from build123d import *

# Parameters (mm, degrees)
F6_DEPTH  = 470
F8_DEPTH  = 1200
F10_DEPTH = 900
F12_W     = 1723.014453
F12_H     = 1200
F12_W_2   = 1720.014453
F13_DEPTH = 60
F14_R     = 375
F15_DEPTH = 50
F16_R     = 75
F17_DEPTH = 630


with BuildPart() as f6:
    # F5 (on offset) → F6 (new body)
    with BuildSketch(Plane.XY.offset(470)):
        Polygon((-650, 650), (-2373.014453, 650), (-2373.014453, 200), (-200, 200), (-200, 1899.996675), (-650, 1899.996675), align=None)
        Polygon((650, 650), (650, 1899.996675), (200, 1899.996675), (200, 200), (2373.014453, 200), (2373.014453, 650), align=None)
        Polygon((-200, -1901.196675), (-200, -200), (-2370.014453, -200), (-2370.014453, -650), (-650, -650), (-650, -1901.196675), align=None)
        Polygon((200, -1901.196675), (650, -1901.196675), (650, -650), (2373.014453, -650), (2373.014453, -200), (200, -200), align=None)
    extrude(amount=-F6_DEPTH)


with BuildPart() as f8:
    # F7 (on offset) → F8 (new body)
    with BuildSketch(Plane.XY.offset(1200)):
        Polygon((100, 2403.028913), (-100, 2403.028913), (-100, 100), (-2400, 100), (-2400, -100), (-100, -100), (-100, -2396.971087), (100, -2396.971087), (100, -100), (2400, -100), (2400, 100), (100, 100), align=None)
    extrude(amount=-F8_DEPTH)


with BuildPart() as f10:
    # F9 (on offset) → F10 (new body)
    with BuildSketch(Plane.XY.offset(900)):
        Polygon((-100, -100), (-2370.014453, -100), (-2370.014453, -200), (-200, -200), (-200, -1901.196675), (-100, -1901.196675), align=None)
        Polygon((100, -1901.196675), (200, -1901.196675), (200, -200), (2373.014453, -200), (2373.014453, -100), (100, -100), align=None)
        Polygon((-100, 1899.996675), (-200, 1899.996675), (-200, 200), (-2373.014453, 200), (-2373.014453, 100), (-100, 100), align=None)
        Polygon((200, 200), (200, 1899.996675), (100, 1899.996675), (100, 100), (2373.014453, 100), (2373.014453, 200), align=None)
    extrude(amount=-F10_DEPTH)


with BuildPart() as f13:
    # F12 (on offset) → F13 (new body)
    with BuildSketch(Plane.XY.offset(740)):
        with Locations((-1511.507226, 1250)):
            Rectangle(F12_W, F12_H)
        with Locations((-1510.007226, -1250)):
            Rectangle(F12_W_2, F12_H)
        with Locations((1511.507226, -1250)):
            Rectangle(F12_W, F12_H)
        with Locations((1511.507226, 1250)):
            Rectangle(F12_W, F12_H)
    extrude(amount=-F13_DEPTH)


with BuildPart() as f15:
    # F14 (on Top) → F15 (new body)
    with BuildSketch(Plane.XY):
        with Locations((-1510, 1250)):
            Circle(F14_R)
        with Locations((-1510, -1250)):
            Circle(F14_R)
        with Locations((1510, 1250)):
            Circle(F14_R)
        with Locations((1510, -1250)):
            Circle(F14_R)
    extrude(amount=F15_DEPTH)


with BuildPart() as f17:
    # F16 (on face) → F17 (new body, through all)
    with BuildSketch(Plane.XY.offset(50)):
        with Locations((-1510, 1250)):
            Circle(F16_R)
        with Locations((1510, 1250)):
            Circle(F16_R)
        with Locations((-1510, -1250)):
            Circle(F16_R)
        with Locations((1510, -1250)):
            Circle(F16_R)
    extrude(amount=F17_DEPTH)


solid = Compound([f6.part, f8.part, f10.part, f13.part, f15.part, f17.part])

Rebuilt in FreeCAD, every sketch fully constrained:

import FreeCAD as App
import Part
import Sketcher
from FreeCAD import Vector

doc = App.newDocument("Part")
params = doc.addObject("Spreadsheet::Sheet", "Params")
for row, (alias, value) in enumerate([
    ("sketch1_width", "450 mm"),
    ("pad1_length", "470 mm"),
    ("sketch2_width", "200 mm"),
    ("sketch2_width2", "2300 mm"),
    ("pad2_length", "1200 mm"),
    ("sketch3_width", "100 mm"),
    ("pad3_length", "900 mm"),
    ("sketch4_height", "1200 mm"),
    ("pad4_length", "60 mm"),
    ("sketch5_diameter", "750 mm"),
    ("pad5_length", "50 mm"),
    ("sketch6_diameter", "150 mm"),
    ("pad6_length", "630 mm"),
], start=1):
    params.set(f"A{row}", alias)
    params.set(f"B{row}", "=" + value)
    params.setAlias(f"B{row}", alias)

body = doc.addObject("PartDesign::Body", "Body")
body.AllowCompound = True

sketch1 = body.newObject("Sketcher::SketchObject", "Sketch")
sketch1.AttachmentSupport = (doc.getObject("XY_Plane"), [""])
sketch1.MapMode = "FlatFace"
sketch1.AttachmentOffset = App.Placement(Vector(0, 0, 470), App.Rotation())
sketch1.addGeometry(Part.LineSegment(Vector(-650, 650, 0), Vector(-2373, 650, 0)), False)
sketch1.addGeometry(Part.LineSegment(Vector(-2373, 650, 0), Vector(-2373, 200, 0)), False)
sketch1.addGeometry(Part.LineSegment(Vector(-2373, 200, 0), Vector(-200, 200, 0)), False)
sketch1.addGeometry(Part.LineSegment(Vector(-200, 200, 0), Vector(-200, 1900, 0)), False)
sketch1.addGeometry(Part.LineSegment(Vector(-200, 1900, 0), Vector(-650, 1900, 0)), False)
sketch1.addGeometry(Part.LineSegment(Vector(-650, 1900, 0), Vector(-650, 650, 0)), False)
sketch1.addGeometry(Part.LineSegment(Vector(650, 650, 0), Vector(650, 1900, 0)), False)
sketch1.addGeometry(Part.LineSegment(Vector(650, 1900, 0), Vector(200, 1900, 0)), False)
sketch1.addGeometry(Part.LineSegment(Vector(200, 1900, 0), Vector(200, 200, 0)), False)
sketch1.addGeometry(Part.LineSegment(Vector(200, 200, 0), Vector(2373, 200, 0)), False)
sketch1.addGeometry(Part.LineSegment(Vector(2373, 200, 0), Vector(2373, 650, 0)), False)
sketch1.addGeometry(Part.LineSegment(Vector(2373, 650, 0), Vector(650, 650, 0)), False)
sketch1.addGeometry(Part.LineSegment(Vector(-200, -1901, 0), Vector(-200, -200, 0)), False)
sketch1.addGeometry(Part.LineSegment(Vector(-200, -200, 0), Vector(-2370, -200, 0)), False)
sketch1.addGeometry(Part.LineSegment(Vector(-2370, -200, 0), Vector(-2370, -650, 0)), False)
sketch1.addGeometry(Part.LineSegment(Vector(-2370, -650, 0), Vector(-650, -650, 0)), False)
sketch1.addGeometry(Part.LineSegment(Vector(-650, -650, 0), Vector(-650, -1901, 0)), False)
sketch1.addGeometry(Part.LineSegment(Vector(-650, -1901, 0), Vector(-200, -1901, 0)), False)
sketch1.addGeometry(Part.LineSegment(Vector(200, -1901, 0), Vector(650, -1901, 0)), False)
sketch1.addGeometry(Part.LineSegment(Vector(650, -1901, 0), Vector(650, -650, 0)), False)
sketch1.addGeometry(Part.LineSegment(Vector(650, -650, 0), Vector(2373, -650, 0)), False)
sketch1.addGeometry(Part.LineSegment(Vector(2373, -650, 0), Vector(2373, -200, 0)), False)
sketch1.addGeometry(Part.LineSegment(Vector(2373, -200, 0), Vector(200, -200, 0)), False)
sketch1.addGeometry(Part.LineSegment(Vector(200, -200, 0), Vector(200, -1901, 0)), False)
sketch1.addConstraint(Sketcher.Constraint("Coincident", 0, 2, 1, 1))
sketch1.addConstraint(Sketcher.Constraint("Coincident", 1, 2, 2, 1))
sketch1.addConstraint(Sketcher.Constraint("Coincident", 2, 2, 3, 1))
sketch1.addConstraint(Sketcher.Constraint("Coincident", 3, 2, 4, 1))
sketch1.addConstraint(Sketcher.Constraint("Coincident", 4, 2, 5, 1))
sketch1.addConstraint(Sketcher.Constraint("Coincident", 5, 2, 0, 1))
sketch1.addConstraint(Sketcher.Constraint("Coincident", 6, 2, 7, 1))
sketch1.addConstraint(Sketcher.Constraint("Coincident", 7, 2, 8, 1))
sketch1.addConstraint(Sketcher.Constraint("Coincident", 8, 2, 9, 1))
sketch1.addConstraint(Sketcher.Constraint("Coincident", 9, 2, 10, 1))
sketch1.addConstraint(Sketcher.Constraint("Coincident", 10, 2, 11, 1))
sketch1.addConstraint(Sketcher.Constraint("Coincident", 11, 2, 6, 1))
sketch1.addConstraint(Sketcher.Constraint("Coincident", 12, 2, 13, 1))
sketch1.addConstraint(Sketcher.Constraint("Coincident", 13, 2, 14, 1))
sketch1.addConstraint(Sketcher.Constraint("Coincident", 14, 2, 15, 1))
sketch1.addConstraint(Sketcher.Constraint("Coincident", 15, 2, 16, 1))
sketch1.addConstraint(Sketcher.Constraint("Coincident", 16, 2, 17, 1))
sketch1.addConstraint(Sketcher.Constraint("Coincident", 17, 2, 12, 1))
sketch1.addConstraint(Sketcher.Constraint("Coincident", 18, 2, 19, 1))
sketch1.addConstraint(Sketcher.Constraint("Coincident", 19, 2, 20, 1))
sketch1.addConstraint(Sketcher.Constraint("Coincident", 20, 2, 21, 1))
sketch1.addConstraint(Sketcher.Constraint("Coincident", 21, 2, 22, 1))
sketch1.addConstraint(Sketcher.Constraint("Coincident", 22, 2, 23, 1))
sketch1.addConstraint(Sketcher.Constraint("Coincident", 23, 2, 18, 1))
sketch1.addConstraint(Sketcher.Constraint("Horizontal", 0))
sketch1.addConstraint(Sketcher.Constraint("Vertical", 1))
sketch1.addConstraint(Sketcher.Constraint("Horizontal", 2))
sketch1.addConstraint(Sketcher.Constraint("Vertical", 3))
sketch1.addConstraint(Sketcher.Constraint("Horizontal", 4))
sketch1.addConstraint(Sketcher.Constraint("Vertical", 5))
sketch1.addConstraint(Sketcher.Constraint("Vertical", 6))
sketch1.addConstraint(Sketcher.Constraint("Horizontal", 7))
sketch1.addConstraint(Sketcher.Constraint("Vertical", 8))
sketch1.addConstraint(Sketcher.Constraint("Horizontal", 9))
sketch1.addConstraint(Sketcher.Constraint("Vertical", 10))
sketch1.addConstraint(Sketcher.Constraint("Horizontal", 11))
sketch1.addConstraint(Sketcher.Constraint("Vertical", 12))
sketch1.addConstraint(Sketcher.Constraint("Horizontal", 13))
sketch1.addConstraint(Sketcher.Constraint("Vertical", 14))
sketch1.addConstraint(Sketcher.Constraint("Horizontal", 15))
sketch1.addConstraint(Sketcher.Constraint("Vertical", 16))
sketch1.addConstraint(Sketcher.Constraint("Horizontal", 17))
sketch1.addConstraint(Sketcher.Constraint("Horizontal", 18))
sketch1.addConstraint(Sketcher.Constraint("Vertical", 19))
sketch1.addConstraint(Sketcher.Constraint("Horizontal", 20))
sketch1.addConstraint(Sketcher.Constraint("Vertical", 21))
sketch1.addConstraint(Sketcher.Constraint("Horizontal", 22))
sketch1.addConstraint(Sketcher.Constraint("Vertical", 23))
sketch1.addConstraint(Sketcher.Constraint("Symmetric", 8, 2, 12, 2, -1, 1))
sketch1.addConstraint(Sketcher.Constraint("Symmetric", 11, 2, 15, 2, -1, 1))
sketch1.addConstraint(Sketcher.Constraint("Symmetric", 5, 2, 19, 2, -1, 1))
sketch1.addConstraint(Sketcher.Constraint("Symmetric", 1, 2, 21, 2, -1, 1))
sketch1.addConstraint(Sketcher.Constraint("Symmetric", 4, 2, 6, 2, -2))
sketch1.addConstraint(Sketcher.Constraint("Symmetric", 2, 2, 8, 2, -2))
sketch1.addConstraint(Sketcher.Constraint("Symmetric", 0, 2, 10, 2, -2))
sketch1.addConstraint(Sketcher.Constraint("Symmetric", 17, 2, 23, 2, -2))
sketch1.addConstraint(Sketcher.Constraint("Equal", 18, 1))
sketch1.addConstraint(Sketcher.Constraint("DistanceX", 4, 2, 4, 1, 450.0))
sketch1.addConstraint(Sketcher.Constraint("DistanceY", -1, 1, 0, 2, 650.0))
sketch1.addConstraint(Sketcher.Constraint("DistanceX", 2, 2, -1, 1, 200.0))
sketch1.addConstraint(Sketcher.Constraint("DistanceX", 1, 2, 13, 2, 3.0))
sketch1.addConstraint(Sketcher.Constraint("DistanceX", 0, 2, 0, 1, 1723.014453))
sketch1.addConstraint(Sketcher.Constraint("DistanceY", 3, 1, 3, 2, 1699.996675))
sketch1.addConstraint(Sketcher.Constraint("DistanceY", 12, 1, 12, 2, 1701.196675))
sketch1.setExpression("Constraints[57]", "Params.sketch1_width")
pad1 = body.newObject("PartDesign::Pad", "Pad")
pad1.Profile = sketch1
pad1.setExpression("Length", "Params.pad1_length")
pad1.Reversed = True
body2 = doc.addObject("PartDesign::Body", "Body001")

sketch2 = body2.newObject("Sketcher::SketchObject", "Sketch001")
sketch2.AttachmentSupport = (doc.getObject("XY_Plane001"), [""])
sketch2.MapMode = "FlatFace"
sketch2.AttachmentOffset = App.Placement(Vector(0, 0, 1200), App.Rotation())
sketch2.addGeometry(Part.LineSegment(Vector(100, 2403, 0), Vector(-100, 2403, 0)), False)
sketch2.addGeometry(Part.LineSegment(Vector(-100, 2403, 0), Vector(-100, 100, 0)), False)
sketch2.addGeometry(Part.LineSegment(Vector(-100, 100, 0), Vector(-2400, 100, 0)), False)
sketch2.addGeometry(Part.LineSegment(Vector(-2400, 100, 0), Vector(-2400, -100, 0)), False)
sketch2.addGeometry(Part.LineSegment(Vector(-2400, -100, 0), Vector(-100, -100, 0)), False)
sketch2.addGeometry(Part.LineSegment(Vector(-100, -100, 0), Vector(-100, -2397, 0)), False)
sketch2.addGeometry(Part.LineSegment(Vector(-100, -2397, 0), Vector(100, -2397, 0)), False)
sketch2.addGeometry(Part.LineSegment(Vector(100, -2397, 0), Vector(100, -100, 0)), False)
sketch2.addGeometry(Part.LineSegment(Vector(100, -100, 0), Vector(2400, -100, 0)), False)
sketch2.addGeometry(Part.LineSegment(Vector(2400, -100, 0), Vector(2400, 100, 0)), False)
sketch2.addGeometry(Part.LineSegment(Vector(2400, 100, 0), Vector(100, 100, 0)), False)
sketch2.addGeometry(Part.LineSegment(Vector(100, 100, 0), Vector(100, 2403, 0)), False)
sketch2.addConstraint(Sketcher.Constraint("Coincident", 0, 2, 1, 1))
sketch2.addConstraint(Sketcher.Constraint("Coincident", 1, 2, 2, 1))
sketch2.addConstraint(Sketcher.Constraint("Coincident", 2, 2, 3, 1))
sketch2.addConstraint(Sketcher.Constraint("Coincident", 3, 2, 4, 1))
sketch2.addConstraint(Sketcher.Constraint("Coincident", 4, 2, 5, 1))
sketch2.addConstraint(Sketcher.Constraint("Coincident", 5, 2, 6, 1))
sketch2.addConstraint(Sketcher.Constraint("Coincident", 6, 2, 7, 1))
sketch2.addConstraint(Sketcher.Constraint("Coincident", 7, 2, 8, 1))
sketch2.addConstraint(Sketcher.Constraint("Coincident", 8, 2, 9, 1))
sketch2.addConstraint(Sketcher.Constraint("Coincident", 9, 2, 10, 1))
sketch2.addConstraint(Sketcher.Constraint("Coincident", 10, 2, 11, 1))
sketch2.addConstraint(Sketcher.Constraint("Coincident", 11, 2, 0, 1))
sketch2.addConstraint(Sketcher.Constraint("Horizontal", 0))
sketch2.addConstraint(Sketcher.Constraint("Vertical", 1))
sketch2.addConstraint(Sketcher.Constraint("Horizontal", 2))
sketch2.addConstraint(Sketcher.Constraint("Vertical", 3))
sketch2.addConstraint(Sketcher.Constraint("Horizontal", 4))
sketch2.addConstraint(Sketcher.Constraint("Vertical", 5))
sketch2.addConstraint(Sketcher.Constraint("Horizontal", 6))
sketch2.addConstraint(Sketcher.Constraint("Vertical", 7))
sketch2.addConstraint(Sketcher.Constraint("Horizontal", 8))
sketch2.addConstraint(Sketcher.Constraint("Vertical", 9))
sketch2.addConstraint(Sketcher.Constraint("Horizontal", 10))
sketch2.addConstraint(Sketcher.Constraint("Vertical", 11))
sketch2.addConstraint(Sketcher.Constraint("Symmetric", 1, 2, 7, 2, -1, 1))
sketch2.addConstraint(Sketcher.Constraint("Symmetric", 3, 2, 9, 2, -1, 1))
sketch2.addConstraint(Sketcher.Constraint("Symmetric", 4, 2, 7, 2, -2))
sketch2.addConstraint(Sketcher.Constraint("Vertical", 7, 2, 10, 2))
sketch2.addConstraint(Sketcher.Constraint("Equal", 6, 3))
sketch2.addConstraint(Sketcher.Constraint("DistanceX", 0, 2, 0, 1, 200.0))
sketch2.addConstraint(Sketcher.Constraint("DistanceX", 2, 2, 2, 1, 2300.0))
sketch2.addConstraint(Sketcher.Constraint("DistanceY", 5, 2, 0, 2, 4800.0))
sketch2.addConstraint(Sketcher.Constraint("DistanceY", 1, 2, 1, 1, 2303.028913))
sketch2.setExpression("Constraints[29]", "Params.sketch2_width")
sketch2.setExpression("Constraints[30]", "Params.sketch2_width2")
pad2 = body2.newObject("PartDesign::Pad", "Pad001")
pad2.Profile = sketch2
pad2.setExpression("Length", "Params.pad2_length")
pad2.Reversed = True
body3 = doc.addObject("PartDesign::Body", "Body002")
body3.AllowCompound = True

sketch3 = body3.newObject("Sketcher::SketchObject", "Sketch002")
sketch3.AttachmentSupport = (doc.getObject("XY_Plane002"), [""])
sketch3.MapMode = "FlatFace"
sketch3.AttachmentOffset = App.Placement(Vector(0, 0, 900), App.Rotation())
sketch3.addGeometry(Part.LineSegment(Vector(-100, -100, 0), Vector(-2370.014453, -100, 0)), False)
sketch3.addGeometry(Part.LineSegment(Vector(-2370.014453, -100, 0), Vector(-2370.014453, -200, 0)), False)
sketch3.addGeometry(Part.LineSegment(Vector(-2370.014453, -200, 0), Vector(-200, -200, 0)), False)
sketch3.addGeometry(Part.LineSegment(Vector(-200, -200, 0), Vector(-200, -1901.196675, 0)), False)
sketch3.addGeometry(Part.LineSegment(Vector(-200, -1901.196675, 0), Vector(-100, -1901.196675, 0)), False)
sketch3.addGeometry(Part.LineSegment(Vector(-100, -1901.196675, 0), Vector(-100, -100, 0)), False)
sketch3.addGeometry(Part.LineSegment(Vector(100, -1901.196675, 0), Vector(200, -1901.196675, 0)), False)
sketch3.addGeometry(Part.LineSegment(Vector(200, -1901.196675, 0), Vector(200, -200, 0)), False)
sketch3.addGeometry(Part.LineSegment(Vector(200, -200, 0), Vector(2373.014453, -200, 0)), False)
sketch3.addGeometry(Part.LineSegment(Vector(2373.014453, -200, 0), Vector(2373.014453, -100, 0)), False)
sketch3.addGeometry(Part.LineSegment(Vector(2373.014453, -100, 0), Vector(100, -100, 0)), False)
sketch3.addGeometry(Part.LineSegment(Vector(100, -100, 0), Vector(100, -1901.196675, 0)), False)
sketch3.addGeometry(Part.LineSegment(Vector(-100, 1899.996675, 0), Vector(-200, 1899.996675, 0)), False)
sketch3.addGeometry(Part.LineSegment(Vector(-200, 1899.996675, 0), Vector(-200, 200, 0)), False)
sketch3.addGeometry(Part.LineSegment(Vector(-200, 200, 0), Vector(-2373.014453, 200, 0)), False)
sketch3.addGeometry(Part.LineSegment(Vector(-2373.014453, 200, 0), Vector(-2373.014453, 100, 0)), False)
sketch3.addGeometry(Part.LineSegment(Vector(-2373.014453, 100, 0), Vector(-100, 100, 0)), False)
sketch3.addGeometry(Part.LineSegment(Vector(-100, 100, 0), Vector(-100, 1899.996675, 0)), False)
sketch3.addGeometry(Part.LineSegment(Vector(200, 200, 0), Vector(200, 1899.996675, 0)), False)
sketch3.addGeometry(Part.LineSegment(Vector(200, 1899.996675, 0), Vector(100, 1899.996675, 0)), False)
sketch3.addGeometry(Part.LineSegment(Vector(100, 1899.996675, 0), Vector(100, 100, 0)), False)
sketch3.addGeometry(Part.LineSegment(Vector(100, 100, 0), Vector(2373.014453, 100, 0)), False)
sketch3.addGeometry(Part.LineSegment(Vector(2373.014453, 100, 0), Vector(2373.014453, 200, 0)), False)
sketch3.addGeometry(Part.LineSegment(Vector(2373.014453, 200, 0), Vector(200, 200, 0)), False)
sketch3.addConstraint(Sketcher.Constraint("Coincident", 0, 2, 1, 1))
sketch3.addConstraint(Sketcher.Constraint("Coincident", 1, 2, 2, 1))
sketch3.addConstraint(Sketcher.Constraint("Coincident", 2, 2, 3, 1))
sketch3.addConstraint(Sketcher.Constraint("Coincident", 3, 2, 4, 1))
sketch3.addConstraint(Sketcher.Constraint("Coincident", 4, 2, 5, 1))
sketch3.addConstraint(Sketcher.Constraint("Coincident", 5, 2, 0, 1))
sketch3.addConstraint(Sketcher.Constraint("Coincident", 6, 2, 7, 1))
sketch3.addConstraint(Sketcher.Constraint("Coincident", 7, 2, 8, 1))
sketch3.addConstraint(Sketcher.Constraint("Coincident", 8, 2, 9, 1))
sketch3.addConstraint(Sketcher.Constraint("Coincident", 9, 2, 10, 1))
sketch3.addConstraint(Sketcher.Constraint("Coincident", 10, 2, 11, 1))
sketch3.addConstraint(Sketcher.Constraint("Coincident", 11, 2, 6, 1))
sketch3.addConstraint(Sketcher.Constraint("Coincident", 12, 2, 13, 1))
sketch3.addConstraint(Sketcher.Constraint("Coincident", 13, 2, 14, 1))
sketch3.addConstraint(Sketcher.Constraint("Coincident", 14, 2, 15, 1))
sketch3.addConstraint(Sketcher.Constraint("Coincident", 15, 2, 16, 1))
sketch3.addConstraint(Sketcher.Constraint("Coincident", 16, 2, 17, 1))
sketch3.addConstraint(Sketcher.Constraint("Coincident", 17, 2, 12, 1))
sketch3.addConstraint(Sketcher.Constraint("Coincident", 18, 2, 19, 1))
sketch3.addConstraint(Sketcher.Constraint("Coincident", 19, 2, 20, 1))
sketch3.addConstraint(Sketcher.Constraint("Coincident", 20, 2, 21, 1))
sketch3.addConstraint(Sketcher.Constraint("Coincident", 21, 2, 22, 1))
sketch3.addConstraint(Sketcher.Constraint("Coincident", 22, 2, 23, 1))
sketch3.addConstraint(Sketcher.Constraint("Coincident", 23, 2, 18, 1))
sketch3.addConstraint(Sketcher.Constraint("Horizontal", 0))
sketch3.addConstraint(Sketcher.Constraint("Vertical", 1))
sketch3.addConstraint(Sketcher.Constraint("Horizontal", 2))
sketch3.addConstraint(Sketcher.Constraint("Vertical", 3))
sketch3.addConstraint(Sketcher.Constraint("Horizontal", 4))
sketch3.addConstraint(Sketcher.Constraint("Vertical", 5))
sketch3.addConstraint(Sketcher.Constraint("Horizontal", 6))
sketch3.addConstraint(Sketcher.Constraint("Vertical", 7))
sketch3.addConstraint(Sketcher.Constraint("Horizontal", 8))
sketch3.addConstraint(Sketcher.Constraint("Vertical", 9))
sketch3.addConstraint(Sketcher.Constraint("Horizontal", 10))
sketch3.addConstraint(Sketcher.Constraint("Vertical", 11))
sketch3.addConstraint(Sketcher.Constraint("Horizontal", 12))
sketch3.addConstraint(Sketcher.Constraint("Vertical", 13))
sketch3.addConstraint(Sketcher.Constraint("Horizontal", 14))
sketch3.addConstraint(Sketcher.Constraint("Vertical", 15))
sketch3.addConstraint(Sketcher.Constraint("Horizontal", 16))
sketch3.addConstraint(Sketcher.Constraint("Vertical", 17))
sketch3.addConstraint(Sketcher.Constraint("Vertical", 18))
sketch3.addConstraint(Sketcher.Constraint("Horizontal", 19))
sketch3.addConstraint(Sketcher.Constraint("Vertical", 20))
sketch3.addConstraint(Sketcher.Constraint("Horizontal", 21))
sketch3.addConstraint(Sketcher.Constraint("Vertical", 22))
sketch3.addConstraint(Sketcher.Constraint("Horizontal", 23))
sketch3.addConstraint(Sketcher.Constraint("Symmetric", 7, 2, 13, 2, -1, 1))
sketch3.addConstraint(Sketcher.Constraint("Symmetric", 9, 2, 15, 2, -1, 1))
sketch3.addConstraint(Sketcher.Constraint("Symmetric", 5, 2, 20, 2, -1, 1))
sketch3.addConstraint(Sketcher.Constraint("Symmetric", 2, 2, 23, 2, -1, 1))
sketch3.addConstraint(Sketcher.Constraint("Symmetric", 3, 2, 6, 2, -2))
sketch3.addConstraint(Sketcher.Constraint("Symmetric", 5, 2, 10, 2, -2))
sketch3.addConstraint(Sketcher.Constraint("Symmetric", 17, 2, 19, 2, -2))
sketch3.addConstraint(Sketcher.Constraint("Symmetric", 14, 2, 22, 2, -2))
sketch3.addConstraint(Sketcher.Constraint("Equal", 19, 1))
sketch3.addConstraint(Sketcher.Constraint("DistanceX", 4, 1, 4, 2, 100.0))
sketch3.addConstraint(Sketcher.Constraint("DistanceY", 0, 2, -1, 1, 100.0))
sketch3.addConstraint(Sketcher.Constraint("DistanceX", 2, 2, -1, 1, 200.0))
sketch3.addConstraint(Sketcher.Constraint("DistanceX", 14, 2, 0, 2, 3.0))
sketch3.addConstraint(Sketcher.Constraint("DistanceX", 0, 2, 0, 1, 2270.014453))
sketch3.addConstraint(Sketcher.Constraint("DistanceY", 3, 2, 3, 1, 1701.196675))
sketch3.addConstraint(Sketcher.Constraint("DistanceY", 13, 2, 13, 1, 1699.996675))
sketch3.setExpression("Constraints[57]", "Params.sketch3_width")
pad3 = body3.newObject("PartDesign::Pad", "Pad002")
pad3.Profile = sketch3
pad3.setExpression("Length", "Params.pad3_length")
pad3.Reversed = True
body4 = doc.addObject("PartDesign::Body", "Body003")
body4.AllowCompound = True

sketch4 = body4.newObject("Sketcher::SketchObject", "Sketch003")
sketch4.AttachmentSupport = (doc.getObject("XY_Plane003"), [""])
sketch4.MapMode = "FlatFace"
sketch4.AttachmentOffset = App.Placement(Vector(0, 0, 740), App.Rotation())
sketch4.addGeometry(Part.LineSegment(Vector(-2373, 1850, 0), Vector(-2373, 650, 0)), False)
sketch4.addGeometry(Part.LineSegment(Vector(-2373, 650, 0), Vector(-650, 650, 0)), False)
sketch4.addGeometry(Part.LineSegment(Vector(-650, 650, 0), Vector(-650, 1850, 0)), False)
sketch4.addGeometry(Part.LineSegment(Vector(-650, 1850, 0), Vector(-2373, 1850, 0)), False)
sketch4.addGeometry(Part.LineSegment(Vector(-2370, -650, 0), Vector(-2370, -1850, 0)), False)
sketch4.addGeometry(Part.LineSegment(Vector(-2370, -1850, 0), Vector(-650, -1850, 0)), False)
sketch4.addGeometry(Part.LineSegment(Vector(-650, -1850, 0), Vector(-650, -650, 0)), False)
sketch4.addGeometry(Part.LineSegment(Vector(-650, -650, 0), Vector(-2370, -650, 0)), False)
sketch4.addGeometry(Part.LineSegment(Vector(650, -650, 0), Vector(650, -1850, 0)), False)
sketch4.addGeometry(Part.LineSegment(Vector(650, -1850, 0), Vector(2373, -1850, 0)), False)
sketch4.addGeometry(Part.LineSegment(Vector(2373, -1850, 0), Vector(2373, -650, 0)), False)
sketch4.addGeometry(Part.LineSegment(Vector(2373, -650, 0), Vector(650, -650, 0)), False)
sketch4.addGeometry(Part.LineSegment(Vector(650, 1850, 0), Vector(650, 650, 0)), False)
sketch4.addGeometry(Part.LineSegment(Vector(650, 650, 0), Vector(2373, 650, 0)), False)
sketch4.addGeometry(Part.LineSegment(Vector(2373, 650, 0), Vector(2373, 1850, 0)), False)
sketch4.addGeometry(Part.LineSegment(Vector(2373, 1850, 0), Vector(650, 1850, 0)), False)
sketch4.addConstraint(Sketcher.Constraint("Coincident", 0, 2, 1, 1))
sketch4.addConstraint(Sketcher.Constraint("Coincident", 1, 2, 2, 1))
sketch4.addConstraint(Sketcher.Constraint("Coincident", 2, 2, 3, 1))
sketch4.addConstraint(Sketcher.Constraint("Coincident", 3, 2, 0, 1))
sketch4.addConstraint(Sketcher.Constraint("Coincident", 4, 2, 5, 1))
sketch4.addConstraint(Sketcher.Constraint("Coincident", 5, 2, 6, 1))
sketch4.addConstraint(Sketcher.Constraint("Coincident", 6, 2, 7, 1))
sketch4.addConstraint(Sketcher.Constraint("Coincident", 7, 2, 4, 1))
sketch4.addConstraint(Sketcher.Constraint("Coincident", 8, 2, 9, 1))
sketch4.addConstraint(Sketcher.Constraint("Coincident", 9, 2, 10, 1))
sketch4.addConstraint(Sketcher.Constraint("Coincident", 10, 2, 11, 1))
sketch4.addConstraint(Sketcher.Constraint("Coincident", 11, 2, 8, 1))
sketch4.addConstraint(Sketcher.Constraint("Coincident", 12, 2, 13, 1))
sketch4.addConstraint(Sketcher.Constraint("Coincident", 13, 2, 14, 1))
sketch4.addConstraint(Sketcher.Constraint("Coincident", 14, 2, 15, 1))
sketch4.addConstraint(Sketcher.Constraint("Coincident", 15, 2, 12, 1))
sketch4.addConstraint(Sketcher.Constraint("Vertical", 0))
sketch4.addConstraint(Sketcher.Constraint("Horizontal", 1))
sketch4.addConstraint(Sketcher.Constraint("Vertical", 2))
sketch4.addConstraint(Sketcher.Constraint("Horizontal", 3))
sketch4.addConstraint(Sketcher.Constraint("Vertical", 4))
sketch4.addConstraint(Sketcher.Constraint("Horizontal", 5))
sketch4.addConstraint(Sketcher.Constraint("Vertical", 6))
sketch4.addConstraint(Sketcher.Constraint("Horizontal", 7))
sketch4.addConstraint(Sketcher.Constraint("Vertical", 8))
sketch4.addConstraint(Sketcher.Constraint("Horizontal", 9))
sketch4.addConstraint(Sketcher.Constraint("Vertical", 10))
sketch4.addConstraint(Sketcher.Constraint("Horizontal", 11))
sketch4.addConstraint(Sketcher.Constraint("Vertical", 12))
sketch4.addConstraint(Sketcher.Constraint("Horizontal", 13))
sketch4.addConstraint(Sketcher.Constraint("Vertical", 14))
sketch4.addConstraint(Sketcher.Constraint("Horizontal", 15))
sketch4.addConstraint(Sketcher.Constraint("Symmetric", 2, 2, 8, 2, -1, 1))
sketch4.addConstraint(Sketcher.Constraint("Symmetric", 0, 2, 10, 2, -1, 1))
sketch4.addConstraint(Sketcher.Constraint("Symmetric", 6, 2, 12, 2, -1, 1))
sketch4.addConstraint(Sketcher.Constraint("Symmetric", 5, 2, 8, 2, -2))
sketch4.addConstraint(Sketcher.Constraint("Symmetric", 0, 2, 13, 2, -2))
sketch4.addConstraint(Sketcher.Constraint("Horizontal", 3, 2, 14, 2))
sketch4.addConstraint(Sketcher.Constraint("DistanceY", 0, 2, 0, 1, 1200.0))
sketch4.addConstraint(Sketcher.Constraint("DistanceY", -1, 1, 0, 2, 650.0))
sketch4.addConstraint(Sketcher.Constraint("DistanceX", 1, 2, -1, 1, 649.999999))
sketch4.addConstraint(Sketcher.Constraint("DistanceX", 0, 2, 4, 2, 3.0))
sketch4.addConstraint(Sketcher.Constraint("DistanceX", 1, 1, 1, 2, 1723.014453))
sketch4.setExpression("Constraints[38]", "Params.sketch4_height")
pad4 = body4.newObject("PartDesign::Pad", "Pad003")
pad4.Profile = sketch4
pad4.setExpression("Length", "Params.pad4_length")
pad4.Reversed = True
body5 = doc.addObject("PartDesign::Body", "Body004")
body5.AllowCompound = True

sketch5 = body5.newObject("Sketcher::SketchObject", "Sketch004")
sketch5.AttachmentSupport = (doc.getObject("XY_Plane004"), [""])
sketch5.MapMode = "FlatFace"
sketch5.addGeometry(Part.Circle(Vector(-1510, 1250, 0), Vector(0, 0, 1), 375), False)
sketch5.addGeometry(Part.Circle(Vector(-1510, -1250, 0), Vector(0, 0, 1), 375), False)
sketch5.addGeometry(Part.Circle(Vector(1510, 1250, 0), Vector(0, 0, 1), 375), False)
sketch5.addGeometry(Part.Circle(Vector(1510, -1250, 0), Vector(0, 0, 1), 375), False)
sketch5.addConstraint(Sketcher.Constraint("Equal", 0, 1))
sketch5.addConstraint(Sketcher.Constraint("Equal", 1, 2))
sketch5.addConstraint(Sketcher.Constraint("Equal", 2, 3))
sketch5.addConstraint(Sketcher.Constraint("Symmetric", 1, 3, 2, 3, -1, 1))
sketch5.addConstraint(Sketcher.Constraint("Symmetric", 0, 3, 3, 3, -1, 1))
sketch5.addConstraint(Sketcher.Constraint("Symmetric", 0, 3, 2, 3, -2))
sketch5.addConstraint(Sketcher.Constraint("Diameter", 0, 750.0))
sketch5.addConstraint(Sketcher.Constraint("DistanceX", 0, 3, -1, 1, 1510.0))
sketch5.addConstraint(Sketcher.Constraint("DistanceY", -1, 1, 0, 3, 1250.0))
sketch5.setExpression("Constraints[6]", "Params.sketch5_diameter")
pad5 = body5.newObject("PartDesign::Pad", "Pad004")
pad5.Profile = sketch5
pad5.setExpression("Length", "Params.pad5_length")
body6 = doc.addObject("PartDesign::Body", "Body005")
body6.AllowCompound = True

sketch6 = body6.newObject("Sketcher::SketchObject", "Sketch005")
sketch6.AttachmentSupport = (doc.getObject("XY_Plane005"), [""])
sketch6.MapMode = "FlatFace"
sketch6.AttachmentOffset = App.Placement(Vector(0, 0, 50), App.Rotation())
sketch6.addGeometry(Part.Circle(Vector(-1510, 1250, 0), Vector(0, 0, 1), 75), False)
sketch6.addGeometry(Part.Circle(Vector(1510, 1250, 0), Vector(0, 0, 1), 75), False)
sketch6.addGeometry(Part.Circle(Vector(-1510, -1250, 0), Vector(0, 0, 1), 75), False)
sketch6.addGeometry(Part.Circle(Vector(1510, -1250, 0), Vector(0, 0, 1), 75), False)
sketch6.addConstraint(Sketcher.Constraint("Equal", 0, 1))
sketch6.addConstraint(Sketcher.Constraint("Equal", 1, 2))
sketch6.addConstraint(Sketcher.Constraint("Equal", 2, 3))
sketch6.addConstraint(Sketcher.Constraint("Symmetric", 1, 3, 2, 3, -1, 1))
sketch6.addConstraint(Sketcher.Constraint("Symmetric", 0, 3, 3, 3, -1, 1))
sketch6.addConstraint(Sketcher.Constraint("Symmetric", 0, 3, 1, 3, -2))
sketch6.addConstraint(Sketcher.Constraint("Diameter", 0, 150.0))
sketch6.addConstraint(Sketcher.Constraint("DistanceX", 0, 3, -1, 1, 1510.0))
sketch6.addConstraint(Sketcher.Constraint("DistanceY", -1, 1, 0, 3, 1250.0))
sketch6.setExpression("Constraints[6]", "Params.sketch6_diameter")
pad6 = body6.newObject("PartDesign::Pad", "Pad005")
pad6.Profile = sketch6
pad6.setExpression("Length", "Params.pad6_length")

doc.recompute()
